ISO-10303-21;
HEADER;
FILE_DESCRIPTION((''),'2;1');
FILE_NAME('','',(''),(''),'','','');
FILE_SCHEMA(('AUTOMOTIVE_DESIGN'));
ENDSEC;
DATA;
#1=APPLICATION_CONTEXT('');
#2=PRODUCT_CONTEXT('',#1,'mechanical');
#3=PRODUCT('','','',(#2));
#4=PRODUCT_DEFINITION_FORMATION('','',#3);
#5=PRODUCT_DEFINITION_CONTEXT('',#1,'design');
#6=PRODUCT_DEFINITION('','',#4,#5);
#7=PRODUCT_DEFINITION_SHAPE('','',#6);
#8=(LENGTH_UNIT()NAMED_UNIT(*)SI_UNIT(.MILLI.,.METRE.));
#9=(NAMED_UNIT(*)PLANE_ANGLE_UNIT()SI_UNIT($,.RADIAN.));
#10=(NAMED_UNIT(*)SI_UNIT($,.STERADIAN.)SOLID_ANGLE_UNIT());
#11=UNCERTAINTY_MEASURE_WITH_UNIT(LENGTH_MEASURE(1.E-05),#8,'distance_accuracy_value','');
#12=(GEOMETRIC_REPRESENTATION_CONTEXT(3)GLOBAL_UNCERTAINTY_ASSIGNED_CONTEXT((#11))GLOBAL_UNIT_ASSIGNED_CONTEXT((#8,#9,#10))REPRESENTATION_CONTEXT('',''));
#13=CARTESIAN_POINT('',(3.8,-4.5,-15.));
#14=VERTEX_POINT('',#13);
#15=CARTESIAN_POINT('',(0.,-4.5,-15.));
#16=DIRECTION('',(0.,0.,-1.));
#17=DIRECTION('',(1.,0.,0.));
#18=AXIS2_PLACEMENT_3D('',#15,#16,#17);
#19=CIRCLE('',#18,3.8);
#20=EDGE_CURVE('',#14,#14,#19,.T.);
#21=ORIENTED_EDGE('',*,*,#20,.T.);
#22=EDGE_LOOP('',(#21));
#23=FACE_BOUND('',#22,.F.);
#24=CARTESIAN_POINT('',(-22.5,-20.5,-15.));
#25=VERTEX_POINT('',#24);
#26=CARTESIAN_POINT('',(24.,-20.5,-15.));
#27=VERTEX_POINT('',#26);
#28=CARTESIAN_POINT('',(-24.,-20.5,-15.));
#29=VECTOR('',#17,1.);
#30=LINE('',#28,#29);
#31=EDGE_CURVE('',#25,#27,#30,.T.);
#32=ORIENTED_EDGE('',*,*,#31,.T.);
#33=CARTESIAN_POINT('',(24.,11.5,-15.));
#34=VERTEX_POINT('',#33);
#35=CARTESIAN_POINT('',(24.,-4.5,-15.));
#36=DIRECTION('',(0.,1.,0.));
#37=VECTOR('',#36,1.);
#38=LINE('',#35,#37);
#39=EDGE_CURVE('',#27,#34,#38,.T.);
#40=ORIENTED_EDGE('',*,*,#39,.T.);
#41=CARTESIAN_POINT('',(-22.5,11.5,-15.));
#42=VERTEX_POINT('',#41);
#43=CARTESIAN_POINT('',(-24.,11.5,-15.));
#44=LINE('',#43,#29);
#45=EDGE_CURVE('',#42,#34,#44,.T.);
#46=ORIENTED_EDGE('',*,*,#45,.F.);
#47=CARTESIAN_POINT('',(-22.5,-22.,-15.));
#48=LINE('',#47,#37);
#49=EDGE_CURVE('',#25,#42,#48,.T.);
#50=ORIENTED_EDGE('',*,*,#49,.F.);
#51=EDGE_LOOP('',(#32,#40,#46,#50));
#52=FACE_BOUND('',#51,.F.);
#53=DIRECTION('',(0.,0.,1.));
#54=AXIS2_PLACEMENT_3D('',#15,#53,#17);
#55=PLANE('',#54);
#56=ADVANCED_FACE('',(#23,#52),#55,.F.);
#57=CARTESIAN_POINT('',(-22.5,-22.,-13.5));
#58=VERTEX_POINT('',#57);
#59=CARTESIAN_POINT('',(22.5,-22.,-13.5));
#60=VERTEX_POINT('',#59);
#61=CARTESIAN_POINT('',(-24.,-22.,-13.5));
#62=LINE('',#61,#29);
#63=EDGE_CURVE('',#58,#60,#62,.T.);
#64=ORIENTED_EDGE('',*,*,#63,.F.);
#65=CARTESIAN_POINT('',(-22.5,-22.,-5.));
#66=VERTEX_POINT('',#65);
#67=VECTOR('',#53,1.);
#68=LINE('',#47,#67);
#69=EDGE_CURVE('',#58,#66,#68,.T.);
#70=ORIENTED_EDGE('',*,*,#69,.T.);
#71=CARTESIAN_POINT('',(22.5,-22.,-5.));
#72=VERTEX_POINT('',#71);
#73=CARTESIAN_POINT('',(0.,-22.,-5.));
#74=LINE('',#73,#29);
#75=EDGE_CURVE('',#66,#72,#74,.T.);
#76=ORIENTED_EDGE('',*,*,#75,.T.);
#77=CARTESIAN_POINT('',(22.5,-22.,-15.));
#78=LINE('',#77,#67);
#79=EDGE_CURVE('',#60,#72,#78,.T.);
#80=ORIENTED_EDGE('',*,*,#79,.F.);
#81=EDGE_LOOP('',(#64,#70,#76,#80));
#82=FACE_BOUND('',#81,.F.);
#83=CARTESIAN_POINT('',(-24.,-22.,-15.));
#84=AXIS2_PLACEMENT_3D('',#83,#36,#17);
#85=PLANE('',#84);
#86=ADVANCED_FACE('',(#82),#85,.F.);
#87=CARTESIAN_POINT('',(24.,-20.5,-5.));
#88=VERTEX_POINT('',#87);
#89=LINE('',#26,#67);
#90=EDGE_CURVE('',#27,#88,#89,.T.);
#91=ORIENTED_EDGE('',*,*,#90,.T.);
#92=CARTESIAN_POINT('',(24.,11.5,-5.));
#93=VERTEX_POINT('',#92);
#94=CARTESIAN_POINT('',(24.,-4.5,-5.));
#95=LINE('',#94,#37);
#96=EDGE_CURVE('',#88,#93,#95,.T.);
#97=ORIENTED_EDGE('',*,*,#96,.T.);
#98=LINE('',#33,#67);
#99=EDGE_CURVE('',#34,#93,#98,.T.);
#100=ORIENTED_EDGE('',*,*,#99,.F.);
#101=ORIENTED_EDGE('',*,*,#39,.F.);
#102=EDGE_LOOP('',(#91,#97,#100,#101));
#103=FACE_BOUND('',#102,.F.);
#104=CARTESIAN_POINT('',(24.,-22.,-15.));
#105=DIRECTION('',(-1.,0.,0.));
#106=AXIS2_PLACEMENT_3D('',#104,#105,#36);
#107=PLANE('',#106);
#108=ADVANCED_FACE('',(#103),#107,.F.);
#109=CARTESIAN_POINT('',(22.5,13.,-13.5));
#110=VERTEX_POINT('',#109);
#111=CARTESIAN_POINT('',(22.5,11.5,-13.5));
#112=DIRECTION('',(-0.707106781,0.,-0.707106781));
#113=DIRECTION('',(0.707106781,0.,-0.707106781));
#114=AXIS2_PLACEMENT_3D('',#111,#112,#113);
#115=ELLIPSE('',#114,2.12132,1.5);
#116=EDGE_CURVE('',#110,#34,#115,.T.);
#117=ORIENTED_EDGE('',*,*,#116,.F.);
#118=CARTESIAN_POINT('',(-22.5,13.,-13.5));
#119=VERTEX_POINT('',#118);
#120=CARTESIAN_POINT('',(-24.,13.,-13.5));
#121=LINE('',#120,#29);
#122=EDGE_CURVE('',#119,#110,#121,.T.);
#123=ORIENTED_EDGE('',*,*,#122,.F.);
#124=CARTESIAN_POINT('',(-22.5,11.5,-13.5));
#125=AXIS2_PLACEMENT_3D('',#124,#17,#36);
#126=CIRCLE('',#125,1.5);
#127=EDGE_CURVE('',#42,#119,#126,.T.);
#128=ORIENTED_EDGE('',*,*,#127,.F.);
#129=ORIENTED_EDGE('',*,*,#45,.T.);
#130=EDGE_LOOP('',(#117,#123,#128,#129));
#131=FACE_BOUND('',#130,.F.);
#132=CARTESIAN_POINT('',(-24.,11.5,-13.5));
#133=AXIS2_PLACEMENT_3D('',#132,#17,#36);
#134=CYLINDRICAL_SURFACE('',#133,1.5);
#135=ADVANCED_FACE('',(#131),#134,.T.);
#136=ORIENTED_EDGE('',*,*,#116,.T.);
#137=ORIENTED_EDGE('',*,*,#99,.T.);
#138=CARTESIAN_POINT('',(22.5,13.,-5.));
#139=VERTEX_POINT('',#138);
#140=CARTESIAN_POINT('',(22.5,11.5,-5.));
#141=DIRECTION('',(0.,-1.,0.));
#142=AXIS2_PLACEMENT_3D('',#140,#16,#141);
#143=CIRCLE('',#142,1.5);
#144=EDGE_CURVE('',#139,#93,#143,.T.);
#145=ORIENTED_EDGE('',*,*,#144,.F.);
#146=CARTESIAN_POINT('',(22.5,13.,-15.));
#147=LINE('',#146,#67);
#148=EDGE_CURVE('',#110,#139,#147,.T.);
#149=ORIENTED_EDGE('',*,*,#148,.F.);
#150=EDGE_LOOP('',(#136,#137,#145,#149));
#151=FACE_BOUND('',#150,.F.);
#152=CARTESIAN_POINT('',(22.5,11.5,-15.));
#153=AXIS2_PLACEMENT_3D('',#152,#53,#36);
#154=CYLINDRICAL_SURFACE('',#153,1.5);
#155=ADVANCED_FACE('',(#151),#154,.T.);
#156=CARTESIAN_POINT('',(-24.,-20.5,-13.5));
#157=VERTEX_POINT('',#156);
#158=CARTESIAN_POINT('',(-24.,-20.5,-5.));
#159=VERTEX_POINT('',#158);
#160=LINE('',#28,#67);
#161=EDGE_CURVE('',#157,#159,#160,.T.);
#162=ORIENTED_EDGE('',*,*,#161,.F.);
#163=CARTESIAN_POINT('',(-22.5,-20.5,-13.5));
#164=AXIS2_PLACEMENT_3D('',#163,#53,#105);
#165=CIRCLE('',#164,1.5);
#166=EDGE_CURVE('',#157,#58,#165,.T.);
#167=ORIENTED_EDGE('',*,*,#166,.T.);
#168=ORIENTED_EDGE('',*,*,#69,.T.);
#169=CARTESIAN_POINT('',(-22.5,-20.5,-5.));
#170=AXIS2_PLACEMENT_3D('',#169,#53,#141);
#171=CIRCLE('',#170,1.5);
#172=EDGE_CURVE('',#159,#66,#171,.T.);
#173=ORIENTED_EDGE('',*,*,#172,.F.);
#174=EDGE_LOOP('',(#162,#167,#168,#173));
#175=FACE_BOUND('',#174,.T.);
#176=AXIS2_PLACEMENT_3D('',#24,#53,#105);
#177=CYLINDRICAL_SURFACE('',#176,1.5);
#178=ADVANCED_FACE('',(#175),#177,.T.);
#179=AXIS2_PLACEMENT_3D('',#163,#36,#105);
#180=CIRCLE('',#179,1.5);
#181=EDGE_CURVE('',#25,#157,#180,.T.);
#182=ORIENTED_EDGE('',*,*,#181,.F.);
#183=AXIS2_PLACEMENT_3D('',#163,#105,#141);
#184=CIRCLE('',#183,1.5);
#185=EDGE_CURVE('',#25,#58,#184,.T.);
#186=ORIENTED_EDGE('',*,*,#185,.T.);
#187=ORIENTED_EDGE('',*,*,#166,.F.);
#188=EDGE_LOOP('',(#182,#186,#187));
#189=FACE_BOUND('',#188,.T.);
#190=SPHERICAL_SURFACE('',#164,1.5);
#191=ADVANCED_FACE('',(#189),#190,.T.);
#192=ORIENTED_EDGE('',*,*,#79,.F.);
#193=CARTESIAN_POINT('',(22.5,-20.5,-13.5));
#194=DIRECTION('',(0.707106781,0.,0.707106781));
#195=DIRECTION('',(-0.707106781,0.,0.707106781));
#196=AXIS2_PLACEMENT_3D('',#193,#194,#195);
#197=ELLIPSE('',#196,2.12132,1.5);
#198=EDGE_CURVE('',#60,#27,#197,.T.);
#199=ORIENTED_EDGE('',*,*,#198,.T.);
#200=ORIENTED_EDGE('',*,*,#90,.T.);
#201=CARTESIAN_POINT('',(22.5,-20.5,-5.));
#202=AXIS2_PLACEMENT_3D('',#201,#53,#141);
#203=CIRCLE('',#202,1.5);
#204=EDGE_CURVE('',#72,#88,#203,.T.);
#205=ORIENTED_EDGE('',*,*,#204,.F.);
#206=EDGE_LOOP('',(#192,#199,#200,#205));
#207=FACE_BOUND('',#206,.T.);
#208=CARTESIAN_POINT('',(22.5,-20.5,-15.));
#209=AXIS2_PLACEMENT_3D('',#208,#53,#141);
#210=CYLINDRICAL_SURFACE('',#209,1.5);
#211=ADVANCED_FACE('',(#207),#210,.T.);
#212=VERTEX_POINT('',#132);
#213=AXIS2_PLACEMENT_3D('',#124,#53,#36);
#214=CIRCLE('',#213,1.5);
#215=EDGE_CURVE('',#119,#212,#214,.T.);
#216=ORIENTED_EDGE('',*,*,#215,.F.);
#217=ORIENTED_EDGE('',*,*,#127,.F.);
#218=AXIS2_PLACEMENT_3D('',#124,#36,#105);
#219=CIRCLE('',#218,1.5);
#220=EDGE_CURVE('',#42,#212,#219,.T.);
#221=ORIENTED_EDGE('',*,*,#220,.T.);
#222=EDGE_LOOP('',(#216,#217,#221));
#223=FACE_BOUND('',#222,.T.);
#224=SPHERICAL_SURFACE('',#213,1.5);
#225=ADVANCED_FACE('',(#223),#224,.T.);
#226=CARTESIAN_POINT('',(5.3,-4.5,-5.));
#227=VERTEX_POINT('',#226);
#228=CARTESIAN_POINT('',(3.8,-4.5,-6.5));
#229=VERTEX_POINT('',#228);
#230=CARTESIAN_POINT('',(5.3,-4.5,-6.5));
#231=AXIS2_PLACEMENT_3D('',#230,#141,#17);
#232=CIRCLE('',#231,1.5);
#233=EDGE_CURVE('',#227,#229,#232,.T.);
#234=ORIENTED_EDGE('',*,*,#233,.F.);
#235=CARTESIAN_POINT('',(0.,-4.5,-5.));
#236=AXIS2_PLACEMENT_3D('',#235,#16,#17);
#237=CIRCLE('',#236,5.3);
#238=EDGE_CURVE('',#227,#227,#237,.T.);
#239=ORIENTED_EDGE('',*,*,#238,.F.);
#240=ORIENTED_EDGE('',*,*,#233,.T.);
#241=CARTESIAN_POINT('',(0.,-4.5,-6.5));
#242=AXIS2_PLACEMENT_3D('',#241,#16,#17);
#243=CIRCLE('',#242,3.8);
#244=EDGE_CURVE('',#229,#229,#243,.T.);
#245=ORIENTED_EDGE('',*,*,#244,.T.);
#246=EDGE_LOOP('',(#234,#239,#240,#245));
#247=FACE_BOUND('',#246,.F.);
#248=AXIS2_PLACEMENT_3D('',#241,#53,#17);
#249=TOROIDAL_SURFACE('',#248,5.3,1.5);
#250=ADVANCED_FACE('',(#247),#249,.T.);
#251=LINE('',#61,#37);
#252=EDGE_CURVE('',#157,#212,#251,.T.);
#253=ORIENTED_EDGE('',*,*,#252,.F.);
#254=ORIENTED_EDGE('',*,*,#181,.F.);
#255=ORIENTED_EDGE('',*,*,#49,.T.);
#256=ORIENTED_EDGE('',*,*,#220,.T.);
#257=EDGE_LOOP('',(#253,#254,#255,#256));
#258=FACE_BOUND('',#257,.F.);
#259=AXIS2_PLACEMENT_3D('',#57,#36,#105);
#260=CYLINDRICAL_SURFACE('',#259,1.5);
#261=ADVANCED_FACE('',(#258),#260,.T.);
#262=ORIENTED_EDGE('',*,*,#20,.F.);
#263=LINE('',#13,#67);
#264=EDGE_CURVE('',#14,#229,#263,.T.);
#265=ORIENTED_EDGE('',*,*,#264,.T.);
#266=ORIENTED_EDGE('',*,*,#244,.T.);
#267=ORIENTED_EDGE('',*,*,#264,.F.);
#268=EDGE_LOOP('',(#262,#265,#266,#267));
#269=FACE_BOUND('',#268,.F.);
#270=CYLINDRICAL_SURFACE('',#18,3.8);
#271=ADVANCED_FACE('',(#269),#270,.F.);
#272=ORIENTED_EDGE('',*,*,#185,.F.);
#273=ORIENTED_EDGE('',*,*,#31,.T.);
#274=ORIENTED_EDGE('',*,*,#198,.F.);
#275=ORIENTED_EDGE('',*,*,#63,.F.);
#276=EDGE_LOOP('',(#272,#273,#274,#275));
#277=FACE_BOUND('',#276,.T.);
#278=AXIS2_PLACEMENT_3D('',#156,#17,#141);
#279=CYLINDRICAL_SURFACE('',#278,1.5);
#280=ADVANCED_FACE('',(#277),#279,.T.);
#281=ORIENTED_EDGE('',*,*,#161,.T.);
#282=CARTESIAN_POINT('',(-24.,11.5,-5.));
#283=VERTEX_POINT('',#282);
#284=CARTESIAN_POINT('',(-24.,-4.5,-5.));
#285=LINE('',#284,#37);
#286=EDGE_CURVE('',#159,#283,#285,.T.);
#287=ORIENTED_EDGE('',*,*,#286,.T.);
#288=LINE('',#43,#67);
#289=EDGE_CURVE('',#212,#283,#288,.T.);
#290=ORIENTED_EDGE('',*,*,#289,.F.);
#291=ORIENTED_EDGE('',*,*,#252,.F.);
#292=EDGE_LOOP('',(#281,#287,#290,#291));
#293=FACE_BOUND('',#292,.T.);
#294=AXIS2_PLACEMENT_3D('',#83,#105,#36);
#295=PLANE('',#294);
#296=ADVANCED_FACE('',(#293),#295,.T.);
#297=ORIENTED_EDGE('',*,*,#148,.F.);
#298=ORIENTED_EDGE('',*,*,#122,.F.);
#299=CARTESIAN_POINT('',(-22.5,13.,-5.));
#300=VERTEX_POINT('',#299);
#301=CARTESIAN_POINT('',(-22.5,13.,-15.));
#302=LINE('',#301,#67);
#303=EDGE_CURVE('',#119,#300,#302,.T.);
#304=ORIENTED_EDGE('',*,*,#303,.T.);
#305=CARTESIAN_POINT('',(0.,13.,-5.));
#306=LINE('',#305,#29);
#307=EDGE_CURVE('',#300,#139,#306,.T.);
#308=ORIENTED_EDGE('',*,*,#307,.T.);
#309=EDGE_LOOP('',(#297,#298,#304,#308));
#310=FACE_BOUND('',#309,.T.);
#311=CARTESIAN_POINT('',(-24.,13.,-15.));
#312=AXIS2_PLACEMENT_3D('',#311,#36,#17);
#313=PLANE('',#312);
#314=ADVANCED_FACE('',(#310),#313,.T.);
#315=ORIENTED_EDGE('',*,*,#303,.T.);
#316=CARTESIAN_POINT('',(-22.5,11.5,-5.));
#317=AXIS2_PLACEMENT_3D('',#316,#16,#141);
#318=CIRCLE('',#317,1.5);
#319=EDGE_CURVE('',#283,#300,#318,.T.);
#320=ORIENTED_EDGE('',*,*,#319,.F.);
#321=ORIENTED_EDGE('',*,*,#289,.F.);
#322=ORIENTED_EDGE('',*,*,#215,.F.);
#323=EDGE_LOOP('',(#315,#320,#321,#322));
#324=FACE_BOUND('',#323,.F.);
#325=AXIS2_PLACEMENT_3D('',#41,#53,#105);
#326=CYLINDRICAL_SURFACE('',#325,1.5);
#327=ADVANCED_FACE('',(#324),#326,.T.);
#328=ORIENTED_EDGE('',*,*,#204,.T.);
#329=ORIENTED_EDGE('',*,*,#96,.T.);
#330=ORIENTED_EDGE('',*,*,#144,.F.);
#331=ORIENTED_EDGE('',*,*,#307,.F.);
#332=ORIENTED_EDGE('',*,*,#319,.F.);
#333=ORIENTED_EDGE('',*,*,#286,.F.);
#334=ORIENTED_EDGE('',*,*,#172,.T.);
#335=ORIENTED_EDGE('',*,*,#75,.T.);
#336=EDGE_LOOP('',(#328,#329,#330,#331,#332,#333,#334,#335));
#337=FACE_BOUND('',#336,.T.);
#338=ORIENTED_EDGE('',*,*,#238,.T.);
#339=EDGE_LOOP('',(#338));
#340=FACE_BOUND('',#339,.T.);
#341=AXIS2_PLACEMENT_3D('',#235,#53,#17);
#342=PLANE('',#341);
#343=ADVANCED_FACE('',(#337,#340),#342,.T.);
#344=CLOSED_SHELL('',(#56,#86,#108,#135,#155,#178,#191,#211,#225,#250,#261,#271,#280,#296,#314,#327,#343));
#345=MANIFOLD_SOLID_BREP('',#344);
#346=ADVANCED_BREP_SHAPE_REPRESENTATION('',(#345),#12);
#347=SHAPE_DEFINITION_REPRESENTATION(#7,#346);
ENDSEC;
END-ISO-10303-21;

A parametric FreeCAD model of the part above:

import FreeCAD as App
import Part
import Sketcher
Q = App.Units.Quantity


def edges_at(feature, points):
    """Names of the edges that pass closest to the given points."""
    edges = feature.Shape.Edges
    near = lambda p: min(range(len(edges)), key=lambda i: edges[i].distToShape(Part.Vertex(*p))[0])
    return sorted({f"Edge{near(p) + 1}" for p in points})


def add_polygon(sketch, points):
    """Adds a closed chain of lines whose ends are joined by coincident constraints."""
    first, n = sketch.GeometryCount, len(points)
    for a, b in zip(points, points[1:] + points[:1]):
        sketch.addGeometry(Part.LineSegment(App.Vector(*a, 0), App.Vector(*b, 0)), False)
    for i in range(n):
        sketch.addConstraint(Sketcher.Constraint("Coincident", first + i, 2, first + (i + 1) % n, 1))

doc = App.newDocument("Part")
params = doc.addObject("Spreadsheet::Sheet", "Params")
for row, (alias, value) in enumerate([
    ("sketch1_width", "48 mm"),
    ("sketch1_height", "35 mm"),
    ("pad1_length", "10 mm"),
    ("sketch2_diameter", "7.6 mm"),
    ("pocket1_length", "10 mm"),
    ("fillet_radius", "1.5 mm"),
], start=1):
    params.set(f"A{row}", alias)
    params.set(f"B{row}", "=" + value)
    params.setAlias(f"B{row}", alias)

body = doc.addObject("PartDesign::Body", "Body")

# Sketch on XY plane
sketch1 = body.newObject("Sketcher::SketchObject", "Sketch")
sketch1.AttachmentSupport = (doc.getObject("XY_Plane"), [""])
sketch1.MapMode = "FlatFace"
sketch1.AttachmentOffset = App.Placement(App.Vector(0, 0, -15), App.Rotation())
add_polygon(sketch1, [(-24, 13), (-24, -22), (24, -22), (24, 13)])  # lines 0-3
sketch1.addConstraint([
    Sketcher.Constraint("Vertical", 0),
    Sketcher.Constraint("Horizontal", 1),
    Sketcher.Constraint("Vertical", 2),
    Sketcher.Constraint("Horizontal", 3),
    Sketcher.Constraint("DistanceX", 1, 1, 1, 2, Q("48 mm")),
    Sketcher.Constraint("DistanceY", 0, 2, 0, 1, Q("35 mm")),
    Sketcher.Constraint("DistanceX", 0, 2, -1, 1, Q("24 mm")),
    Sketcher.Constraint("DistanceY", 0, 2, -1, 1, Q("22 mm")),
])
sketch1.setExpression("Constraints[8]", "Params.sketch1_width")
sketch1.setExpression("Constraints[9]", "Params.sketch1_height")
pad1 = body.newObject("PartDesign::Pad", "Pad")
pad1.Profile = sketch1
pad1.setExpression("Length", "Params.pad1_length")

# Sketch on XY plane
sketch2 = body.newObject("Sketcher::SketchObject", "Sketch001")
sketch2.AttachmentSupport = (doc.getObject("XY_Plane"), [""])
sketch2.MapMode = "FlatFace"
sketch2.AttachmentOffset = App.Placement(App.Vector(0, 0, -15), App.Rotation())
sketch2.addGeometry(Part.Circle(App.Vector(0, -4.5, 0), App.Vector(0, 0, 1), 3.8), False)
sketch2.addConstraint([
    Sketcher.Constraint("PointOnObject", 0, 3, -2),
    Sketcher.Constraint("Diameter", 0, Q("7.6 mm")),
    Sketcher.Constraint("DistanceY", 0, 3, -1, 1, Q("4.5 mm")),
])
sketch2.setExpression("Constraints[1]", "Params.sketch2_diameter")
pocket1 = body.newObject("PartDesign::Pocket", "Pocket")
pocket1.Profile = sketch2
pocket1.setExpression("Length", "Params.pocket1_length")
pocket1.Reversed = True
doc.recompute()

fillet = body.newObject("PartDesign::Fillet", "Fillet")
fillet.Base = (pocket1, edges_at(pocket1, [
    (-24, -22, -10),
    (-24, 13, -10),
    (24, -22, -10),
    (0, 13, -15),
    (-24, -4.5, -15),
    (-3.8, -4.5, -5),
    (0, -22, -15),
    (24, 13, -10),
]))
fillet.setExpression("Radius", "Params.fillet_radius")

doc.recompute()
